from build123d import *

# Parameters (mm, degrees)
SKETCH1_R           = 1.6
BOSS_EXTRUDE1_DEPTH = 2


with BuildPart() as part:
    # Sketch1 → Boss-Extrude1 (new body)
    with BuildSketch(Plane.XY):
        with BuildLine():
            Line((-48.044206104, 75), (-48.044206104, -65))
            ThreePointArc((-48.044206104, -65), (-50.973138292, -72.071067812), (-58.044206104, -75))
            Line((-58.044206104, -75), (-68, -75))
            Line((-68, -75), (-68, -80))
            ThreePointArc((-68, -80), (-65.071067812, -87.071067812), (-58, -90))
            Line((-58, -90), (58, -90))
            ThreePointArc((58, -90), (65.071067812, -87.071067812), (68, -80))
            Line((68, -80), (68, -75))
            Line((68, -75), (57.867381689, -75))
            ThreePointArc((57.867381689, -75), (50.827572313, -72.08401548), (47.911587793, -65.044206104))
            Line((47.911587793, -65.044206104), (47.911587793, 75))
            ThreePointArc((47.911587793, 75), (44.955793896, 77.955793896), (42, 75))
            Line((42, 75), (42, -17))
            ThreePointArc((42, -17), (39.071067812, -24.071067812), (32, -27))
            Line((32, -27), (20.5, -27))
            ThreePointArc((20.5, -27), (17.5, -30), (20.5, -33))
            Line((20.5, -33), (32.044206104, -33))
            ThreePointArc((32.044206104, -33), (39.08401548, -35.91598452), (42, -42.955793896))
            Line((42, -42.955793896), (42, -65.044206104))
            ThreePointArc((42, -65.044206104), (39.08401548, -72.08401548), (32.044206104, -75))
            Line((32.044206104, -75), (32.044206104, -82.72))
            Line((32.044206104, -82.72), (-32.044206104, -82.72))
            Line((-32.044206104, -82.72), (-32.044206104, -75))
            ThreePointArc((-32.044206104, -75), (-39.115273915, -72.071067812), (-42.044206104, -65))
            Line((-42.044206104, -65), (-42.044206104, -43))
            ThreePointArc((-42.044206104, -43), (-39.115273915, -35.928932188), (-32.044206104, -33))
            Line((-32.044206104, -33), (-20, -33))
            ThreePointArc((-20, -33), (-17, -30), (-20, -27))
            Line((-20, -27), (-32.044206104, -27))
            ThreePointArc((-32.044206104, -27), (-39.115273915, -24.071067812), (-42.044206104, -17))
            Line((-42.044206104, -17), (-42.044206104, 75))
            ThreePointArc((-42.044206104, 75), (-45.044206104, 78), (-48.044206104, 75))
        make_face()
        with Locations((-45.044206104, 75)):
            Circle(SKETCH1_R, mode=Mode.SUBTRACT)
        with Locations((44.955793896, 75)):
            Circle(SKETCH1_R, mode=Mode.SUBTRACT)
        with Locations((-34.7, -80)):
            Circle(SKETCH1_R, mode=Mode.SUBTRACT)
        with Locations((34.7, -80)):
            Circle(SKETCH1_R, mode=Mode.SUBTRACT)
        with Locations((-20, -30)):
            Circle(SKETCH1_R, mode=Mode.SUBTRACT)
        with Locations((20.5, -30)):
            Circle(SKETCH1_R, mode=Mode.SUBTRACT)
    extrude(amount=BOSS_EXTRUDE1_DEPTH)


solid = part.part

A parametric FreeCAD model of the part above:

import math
import FreeCAD as App
import Part
import Sketcher
from FreeCAD import Vector
Q = App.Units.Quantity

doc = App.newDocument("Part")
params = doc.addObject("Spreadsheet::Sheet", "Params")
for row, (alias, value) in enumerate([
    ("sketch1_radius", "10 mm"),
    ("sketch1_radius2", "3 mm"),
    ("sketch1_diameter", "3.2 mm"),
    ("sketch1_width", "116 mm"),
    ("sketch1_height", "140 mm"),
    ("pad1_length", "2 mm"),
], start=1):
    params.set(f"A{row}", alias)
    params.set(f"B{row}", "=" + value)
    params.setAlias(f"B{row}", alias)

body = doc.addObject("PartDesign::Body", "Body")

# Sketch on XY plane
sketch1 = doc.addObject("Sketcher::SketchObject", "Sketch")
body.addObject(sketch1)
sketch1.AttachmentSupport = (doc.XY_Plane, [""])
sketch1.MapMode = "FlatFace"
sketch1.addGeometry([
    Part.LineSegment(Vector(-48, 75, 0), Vector(-48, -65, 0)),  # 0
    Part.ArcOfCircle(Part.Circle(Vector(-58, -65, 0), Vector(0, 0, 1), 10), math.radians(-90), math.radians(0)),  # 1
    Part.LineSegment(Vector(-58, -75, 0), Vector(-68, -75, 0)),  # 2
    Part.LineSegment(Vector(-68, -75, 0), Vector(-68, -80, 0)),  # 3
    Part.ArcOfCircle(Part.Circle(Vector(-58, -80, 0), Vector(0, 0, 1), 10), math.radians(180), math.radians(270)),  # 4
    Part.LineSegment(Vector(-58, -90, 0), Vector(58, -90, 0)),  # 5
    Part.ArcOfCircle(Part.Circle(Vector(58, -80, 0), Vector(0, 0, 1), 10), math.radians(-90), math.radians(0)),  # 6
    Part.LineSegment(Vector(68, -80, 0), Vector(68, -75, 0)),  # 7
    Part.LineSegment(Vector(68, -75, 0), Vector(57.9, -75, 0)),  # 8
    Part.ArcOfCircle(Part.Circle(Vector(57.9, -65, 0), Vector(0, 0, 1), 10), math.radians(180), math.radians(270)),  # 9
    Part.LineSegment(Vector(47.9, -65, 0), Vector(47.9, 75, 0)),  # 10
    Part.ArcOfCircle(Part.Circle(Vector(45, 75, 0), Vector(0, 0, 1), 3), math.radians(0), math.radians(180)),  # 11
    Part.LineSegment(Vector(42, 75, 0), Vector(42, -17, 0)),  # 12
    Part.ArcOfCircle(Part.Circle(Vector(32, -17, 0), Vector(0, 0, 1), 10), math.radians(-90), math.radians(0)),  # 13
    Part.LineSegment(Vector(32, -27, 0), Vector(20.5, -27, 0)),  # 14
    Part.ArcOfCircle(Part.Circle(Vector(20.5, -30, 0), Vector(0, 0, 1), 3), math.radians(90), math.radians(270)),  # 15
    Part.LineSegment(Vector(20.5, -33, 0), Vector(32, -33, 0)),  # 16
    Part.ArcOfCircle(Part.Circle(Vector(32, -43, 0), Vector(0, 0, 1), 10), math.radians(0), math.radians(90)),  # 17
    Part.LineSegment(Vector(42, -43, 0), Vector(42, -65, 0)),  # 18
    Part.ArcOfCircle(Part.Circle(Vector(32, -65, 0), Vector(0, 0, 1), 10), math.radians(-90), math.radians(0)),  # 19
    Part.LineSegment(Vector(32, -75, 0), Vector(32, -82.7, 0)),  # 20
    Part.LineSegment(Vector(32, -82.7, 0), Vector(-32, -82.7, 0)),  # 21
    Part.LineSegment(Vector(-32, -82.7, 0), Vector(-32, -75, 0)),  # 22
    Part.ArcOfCircle(Part.Circle(Vector(-32, -65, 0), Vector(0, 0, 1), 10), math.radians(-180), math.radians(-90)),  # 23
    Part.LineSegment(Vector(-42, -65, 0), Vector(-42, -43, 0)),  # 24
    Part.ArcOfCircle(Part.Circle(Vector(-32, -43, 0), Vector(0, 0, 1), 10), math.radians(90), math.radians(180)),  # 25
    Part.LineSegment(Vector(-32, -33, 0), Vector(-20, -33, 0)),  # 26
    Part.ArcOfCircle(Part.Circle(Vector(-20, -30, 0), Vector(0, 0, 1), 3), math.radians(-90), math.radians(90)),  # 27
    Part.LineSegment(Vector(-20, -27, 0), Vector(-32, -27, 0)),  # 28
    Part.ArcOfCircle(Part.Circle(Vector(-32, -17, 0), Vector(0, 0, 1), 10), math.radians(-180), math.radians(-90)),  # 29
    Part.LineSegment(Vector(-42, -17, 0), Vector(-42, 75, 0)),  # 30
    Part.ArcOfCircle(Part.Circle(Vector(-45, 75, 0), Vector(0, 0, 1), 3), math.radians(0), math.radians(180)),  # 31
    Part.Circle(Vector(-34.7, -80, 0), Vector(0, 0, 1), 1.6),  # 32
    Part.Circle(Vector(-20, -30, 0), Vector(0, 0, 1), 1.6),  # 33
    Part.Circle(Vector(34.7, -80, 0), Vector(0, 0, 1), 1.6),  # 34
    Part.Circle(Vector(20.5, -30, 0), Vector(0, 0, 1), 1.6),  # 35
    Part.Circle(Vector(-45, 75, 0), Vector(0, 0, 1), 1.6),  # 36
    Part.Circle(Vector(45, 75, 0), Vector(0, 0, 1), 1.6),  # 37
], False)
sketch1.addConstraint([
    Sketcher.Constraint("Tangent", 0, 2, 1, 2),
    Sketcher.Constraint("Tangent", 1, 1, 2, 1),
    Sketcher.Constraint("Coincident", 2, 2, 3, 1),
    Sketcher.Constraint("Tangent", 3, 2, 4, 1),
    Sketcher.Constraint("Tangent", 4, 2, 5, 1),
    Sketcher.Constraint("Tangent", 5, 2, 6, 1),
    Sketcher.Constraint("Tangent", 6, 2, 7, 1),
    Sketcher.Constraint("Coincident", 7, 2, 8, 1),
    Sketcher.Constraint("Tangent", 8, 2, 9, 2),
    Sketcher.Constraint("Tangent", 9, 1, 10, 1),
    Sketcher.Constraint("Tangent", 10, 2, 11, 1),
    Sketcher.Constraint("Tangent", 11, 2, 12, 1),
    Sketcher.Constraint("Tangent", 12, 2, 13, 2),
    Sketcher.Constraint("Tangent", 13, 1, 14, 1),
    Sketcher.Constraint("Tangent", 14, 2, 15, 1),
    Sketcher.Constraint("Tangent", 15, 2, 16, 1),
    Sketcher.Constraint("Tangent", 16, 2, 17, 2),
    Sketcher.Constraint("Tangent", 17, 1, 18, 1),
    Sketcher.Constraint("Tangent", 18, 2, 19, 2),
    Sketcher.Constraint("Coincident", 19, 1, 20, 1),
    Sketcher.Constraint("Coincident", 20, 2, 21, 1),
    Sketcher.Constraint("Coincident", 21, 2, 22, 1),
    Sketcher.Constraint("Coincident", 22, 2, 23, 2),
    Sketcher.Constraint("Tangent", 23, 1, 24, 1),
    Sketcher.Constraint("Tangent", 24, 2, 25, 2),
    Sketcher.Constraint("Tangent", 25, 1, 26, 1),
    Sketcher.Constraint("Tangent", 26, 2, 27, 1),
    Sketcher.Constraint("Tangent", 27, 2, 28, 1),
    Sketcher.Constraint("Tangent", 28, 2, 29, 2),
    Sketcher.Constraint("Tangent", 29, 1, 30, 1),
    Sketcher.Constraint("Tangent", 30, 2, 31, 1),
    Sketcher.Constraint("Tangent", 31, 2, 0, 1),
    Sketcher.Constraint("Vertical", 0),
    Sketcher.Constraint("Horizontal", 2),
    Sketcher.Constraint("Vertical", 3),
    Sketcher.Constraint("Horizontal", 5),
    Sketcher.Constraint("Vertical", 7),
    Sketcher.Constraint("Horizontal", 8),
    Sketcher.Constraint("Vertical", 10),
    Sketcher.Constraint("Vertical", 12),
    Sketcher.Constraint("Horizontal", 14),
    Sketcher.Constraint("Horizontal", 16),
    Sketcher.Constraint("Vertical", 18),
    Sketcher.Constraint("Vertical", 20),
    Sketcher.Constraint("Horizontal", 21),
    Sketcher.Constraint("Vertical", 22),
    Sketcher.Constraint("Vertical", 24),
    Sketcher.Constraint("Horizontal", 26),
    Sketcher.Constraint("Horizontal", 28),
    Sketcher.Constraint("Vertical", 30),
    Sketcher.Constraint("Coincident", 33, 3, 27, 3),
    Sketcher.Constraint("Coincident", 35, 3, 15, 3),
    Sketcher.Constraint("Coincident", 36, 3, 31, 3),
    Sketcher.Constraint("Coincident", 37, 3, 11, 3),
    Sketcher.Constraint("Equal", 1, 4),
    Sketcher.Constraint("Equal", 4, 6),
    Sketcher.Constraint("Equal", 6, 13),
    Sketcher.Constraint("Equal", 9, 17),
    Sketcher.Constraint("Equal", 17, 19),
    Sketcher.Constraint("Equal", 13, 23),
    Sketcher.Constraint("Equal", 23, 25),
    Sketcher.Constraint("Equal", 15, 27),
    Sketcher.Constraint("Equal", 25, 29),
    Sketcher.Constraint("Equal", 27, 31),
    Sketcher.Constraint("Equal", 32, 33),
    Sketcher.Constraint("Equal", 33, 34),
    Sketcher.Constraint("Equal", 34, 35),
    Sketcher.Constraint("Equal", 35, 36),
    Sketcher.Constraint("Equal", 36, 37),
    Sketcher.Constraint("Symmetric", 32, 3, 34, 3, -2),
    Sketcher.Constraint("Symmetric", 2, 2, 7, 2, -2),
    Sketcher.Constraint("Symmetric", 19, 1, 22, 2, -2),
    Sketcher.Constraint("Symmetric", 16, 2, 25, 1, -2),
    Sketcher.Constraint("Horizontal", 9, 3, 19, 3),
    Sketcher.Constraint("Horizontal", 11, 3, 31, 3),
    Sketcher.Constraint("Horizontal", 6, 3, 32, 3),
    Sketcher.Constraint("Vertical", 25, 3, 29, 3),
    Sketcher.Constraint("Vertical", 12, 2, 17, 1),
    Sketcher.Constraint("Vertical", 16, 2, 19, 1),
    Sketcher.Constraint("Radius", 1, Q("10 mm")),
    Sketcher.Constraint("Radius", 15, Q("3 mm")),
    Sketcher.Constraint("Diameter", 32, Q("3.2 mm")),
    Sketcher.Constraint("DistanceX", 5, 1, 5, 2, Q("116 mm")),
    Sketcher.Constraint("DistanceY", 0, 2, 0, 1, Q("140 mm")),
    Sketcher.Constraint("DistanceY", 3, 2, 3, 1, Q("5 mm")),
    Sketcher.Constraint("DistanceY", 12, 2, 12, 1, Q("92 mm")),
    Sketcher.Constraint("DistanceX", 14, 2, 14, 1, Q("11.5 mm")),
    Sketcher.Constraint("DistanceY", 1, 3, -1, 1, Q("65 mm")),
    Sketcher.Constraint("DistanceX", -1, 1, 13, 3, Q("32 mm")),
    Sketcher.Constraint("DistanceX", 27, 3, -1, 1, Q("20 mm")),
    Sketcher.Constraint("DistanceX", 1, 3, 11, 3, Q("103 mm")),
    Sketcher.Constraint("DistanceY", 20, 2, 20, 1, Q("7.72 mm")),
    Sketcher.Constraint("DistanceX", 32, 3, -1, 1, Q("34.7 mm")),
    Sketcher.Constraint("Radius", 9, Q("9.955794 mm")),
])
sketch1.setExpression("Constraints[79]", "Params.sketch1_radius")
sketch1.setExpression("Constraints[80]", "Params.sketch1_radius2")
sketch1.setExpression("Constraints[81]", "Params.sketch1_diameter")
sketch1.setExpression("Constraints[82]", "Params.sketch1_width")
sketch1.setExpression("Constraints[83]", "Params.sketch1_height")
pad1 = doc.addObject("PartDesign::Pad", "Pad")
body.addObject(pad1)
pad1.Profile = sketch1
pad1.setExpression("Length", "Params.pad1_length")

doc.recompute()
